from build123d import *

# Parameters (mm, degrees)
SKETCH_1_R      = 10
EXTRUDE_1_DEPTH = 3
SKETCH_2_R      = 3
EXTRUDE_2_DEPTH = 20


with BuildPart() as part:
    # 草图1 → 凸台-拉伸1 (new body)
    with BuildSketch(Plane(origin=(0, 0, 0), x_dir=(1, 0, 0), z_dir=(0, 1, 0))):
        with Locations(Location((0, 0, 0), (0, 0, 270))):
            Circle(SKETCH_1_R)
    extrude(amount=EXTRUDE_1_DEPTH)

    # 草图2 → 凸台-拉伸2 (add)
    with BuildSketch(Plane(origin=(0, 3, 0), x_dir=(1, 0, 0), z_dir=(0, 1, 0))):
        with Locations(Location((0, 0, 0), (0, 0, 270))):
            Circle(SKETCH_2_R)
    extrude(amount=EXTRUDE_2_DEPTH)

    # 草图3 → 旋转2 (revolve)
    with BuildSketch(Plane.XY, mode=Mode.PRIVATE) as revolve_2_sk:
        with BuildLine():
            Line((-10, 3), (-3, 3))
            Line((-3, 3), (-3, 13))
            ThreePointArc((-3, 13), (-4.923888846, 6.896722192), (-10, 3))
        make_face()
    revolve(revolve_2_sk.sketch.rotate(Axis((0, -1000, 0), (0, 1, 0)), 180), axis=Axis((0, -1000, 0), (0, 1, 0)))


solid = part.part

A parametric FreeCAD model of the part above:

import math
import FreeCAD as App
import Part
import Sketcher
Q = App.Units.Quantity

doc = App.newDocument("Part")
body = doc.addObject("PartDesign::Body", "Body")

sketch1 = body.newObject("Sketcher::SketchObject", "Sketch")
sketch1.AttachmentSupport = (doc.getObject("XZ_Plane"), [""])
sketch1.MapMode = "FlatFace"
sketch1.addGeometry(Part.Circle(App.Vector(0, 0, 0), App.Vector(0, 0, 1), 10), False)
sketch1.addConstraint([
    Sketcher.Constraint("Coincident", 0, 3, -1, 1),
    Sketcher.Constraint("Diameter", 0, Q("20 mm")),
])
pad1 = body.newObject("PartDesign::Pad", "Pad")
pad1.Profile = sketch1
pad1.Length = 3
pad1.Reversed = True

sketch2 = body.newObject("Sketcher::SketchObject", "Sketch001")
sketch2.AttachmentSupport = (doc.getObject("XZ_Plane"), [""])
sketch2.MapMode = "FlatFace"
sketch2.AttachmentOffset = App.Placement(App.Vector(0, 0, -3), App.Rotation())
sketch2.addGeometry(Part.Circle(App.Vector(0, 0, 0), App.Vector(0, 0, 1), 3), False)
sketch2.addConstraint([
    Sketcher.Constraint("Coincident", 0, 3, -1, 1),
    Sketcher.Constraint("Diameter", 0, Q("6 mm")),
])
pad2 = body.newObject("PartDesign::Pad", "Pad001")
pad2.Profile = sketch2
pad2.Length = 20
pad2.Reversed = True

sketch3 = body.newObject("Sketcher::SketchObject", "Sketch002")
sketch3.AttachmentSupport = (doc.getObject("XY_Plane"), [""])
sketch3.MapMode = "FlatFace"
sketch3.addGeometry([
    Part.LineSegment(App.Vector(-10, 3, 0), App.Vector(-3, 3, 0)),
    Part.LineSegment(App.Vector(-3, 3, 0), App.Vector(-3, 13, 0)),
    Part.ArcOfCircle(Part.Circle(App.Vector(-13.642857, 13, 0), App.Vector(0, 0, 1), 10.642857), math.radians(-69.98404), math.radians(0)),
], False)
sketch3.addConstraint([
    Sketcher.Constraint("Coincident", 0, 2, 1, 1),
    Sketcher.Constraint("Tangent", 1, 2, 2, 2),
    Sketcher.Constraint("Coincident", 2, 1, 0, 1),
    Sketcher.Constraint("Horizontal", 0),
    Sketcher.Constraint("Vertical", 1),
    Sketcher.Constraint("DistanceX", 0, 1, 0, 2, Q("7 mm")),
    Sketcher.Constraint("DistanceY", 1, 1, 1, 2, Q("10 mm")),
    Sketcher.Constraint("DistanceY", -1, 1, 2, 3, Q("13 mm")),
    Sketcher.Constraint("DistanceX", 0, 2, -1, 1, Q("3 mm")),
])
revolution = body.newObject("PartDesign::Revolution", "Revolution")
revolution.Profile = sketch3
revolution.ReferenceAxis = (sketch3, ["V_Axis"])
revolution.Angle = 360

doc.recompute()
